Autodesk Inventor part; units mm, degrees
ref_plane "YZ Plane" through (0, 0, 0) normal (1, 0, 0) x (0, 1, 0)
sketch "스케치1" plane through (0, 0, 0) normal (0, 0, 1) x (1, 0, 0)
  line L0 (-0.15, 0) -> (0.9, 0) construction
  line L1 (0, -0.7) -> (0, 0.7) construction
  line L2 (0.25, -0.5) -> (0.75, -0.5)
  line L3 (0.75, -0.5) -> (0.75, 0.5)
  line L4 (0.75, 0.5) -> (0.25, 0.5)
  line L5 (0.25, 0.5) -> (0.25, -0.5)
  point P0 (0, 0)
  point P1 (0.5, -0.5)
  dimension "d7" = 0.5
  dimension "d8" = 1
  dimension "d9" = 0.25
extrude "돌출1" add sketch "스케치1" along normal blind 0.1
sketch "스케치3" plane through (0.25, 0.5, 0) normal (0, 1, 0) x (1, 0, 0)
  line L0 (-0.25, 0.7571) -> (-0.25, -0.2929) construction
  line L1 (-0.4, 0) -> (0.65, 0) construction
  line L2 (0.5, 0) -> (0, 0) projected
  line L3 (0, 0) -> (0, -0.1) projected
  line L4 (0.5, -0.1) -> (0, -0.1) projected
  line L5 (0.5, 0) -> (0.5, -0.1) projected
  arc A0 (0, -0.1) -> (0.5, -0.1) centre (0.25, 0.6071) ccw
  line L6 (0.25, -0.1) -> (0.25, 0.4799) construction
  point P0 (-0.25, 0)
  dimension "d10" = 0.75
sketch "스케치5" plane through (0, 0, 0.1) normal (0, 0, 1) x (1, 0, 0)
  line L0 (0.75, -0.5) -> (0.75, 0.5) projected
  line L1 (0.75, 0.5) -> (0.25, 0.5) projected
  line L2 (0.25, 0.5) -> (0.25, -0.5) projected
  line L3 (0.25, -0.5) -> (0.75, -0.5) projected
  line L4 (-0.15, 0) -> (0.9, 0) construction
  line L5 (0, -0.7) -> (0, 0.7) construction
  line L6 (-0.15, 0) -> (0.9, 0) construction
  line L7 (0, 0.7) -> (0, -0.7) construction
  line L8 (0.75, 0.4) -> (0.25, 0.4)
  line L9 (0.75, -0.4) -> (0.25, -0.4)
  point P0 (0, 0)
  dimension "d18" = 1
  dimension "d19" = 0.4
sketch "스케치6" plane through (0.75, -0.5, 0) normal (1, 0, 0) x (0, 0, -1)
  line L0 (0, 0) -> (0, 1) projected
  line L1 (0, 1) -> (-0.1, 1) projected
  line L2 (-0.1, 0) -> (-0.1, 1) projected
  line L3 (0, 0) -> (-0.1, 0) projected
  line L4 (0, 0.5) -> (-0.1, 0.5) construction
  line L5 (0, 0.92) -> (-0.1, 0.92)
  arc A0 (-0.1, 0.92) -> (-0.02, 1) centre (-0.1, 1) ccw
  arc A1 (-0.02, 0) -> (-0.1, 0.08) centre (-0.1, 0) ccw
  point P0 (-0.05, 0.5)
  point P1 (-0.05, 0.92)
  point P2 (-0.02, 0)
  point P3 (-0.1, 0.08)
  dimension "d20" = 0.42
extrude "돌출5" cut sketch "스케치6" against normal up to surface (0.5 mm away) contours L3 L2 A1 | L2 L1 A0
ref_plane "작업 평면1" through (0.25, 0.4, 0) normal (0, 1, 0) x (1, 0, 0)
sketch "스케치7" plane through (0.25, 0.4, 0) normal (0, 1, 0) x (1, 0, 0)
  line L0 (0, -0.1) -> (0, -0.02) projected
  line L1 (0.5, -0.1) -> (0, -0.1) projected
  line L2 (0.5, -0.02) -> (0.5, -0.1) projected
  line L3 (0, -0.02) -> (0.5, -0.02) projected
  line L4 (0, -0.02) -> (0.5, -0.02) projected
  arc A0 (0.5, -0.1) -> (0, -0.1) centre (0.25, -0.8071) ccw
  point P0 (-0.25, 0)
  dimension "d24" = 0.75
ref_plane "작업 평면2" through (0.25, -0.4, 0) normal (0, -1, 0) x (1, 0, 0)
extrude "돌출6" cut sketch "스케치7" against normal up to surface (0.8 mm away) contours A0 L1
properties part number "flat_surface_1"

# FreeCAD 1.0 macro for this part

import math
import FreeCAD as App
import Part
import Sketcher


def add_polygon(sketch, points):
    """Adds a closed chain of lines whose ends are joined by coincident constraints."""
    first, n = sketch.GeometryCount, len(points)
    for a, b in zip(points, points[1:] + points[:1]):
        sketch.addGeometry(Part.LineSegment(App.Vector(*a, 0), App.Vector(*b, 0)), False)
    for i in range(n):
        sketch.addConstraint(Sketcher.Constraint("Coincident", first + i, 2, first + (i + 1) % n, 1))

doc = App.newDocument("Part")
body = doc.addObject("PartDesign::Body", "Body")

sketch1 = doc.addObject("Sketcher::SketchObject", "Sketch")
body.addObject(sketch1)
sketch1.AttachmentSupport = (doc.XY_Plane, [""])
sketch1.MapMode = "FlatFace"
add_polygon(sketch1, [(0.2, 0.5), (0.2, -0.5), (0.8, -0.5), (0.8, 0.5)])
sketch1.addConstraint(Sketcher.Constraint("Vertical", 0))
sketch1.addConstraint(Sketcher.Constraint("Horizontal", 1))
sketch1.addConstraint(Sketcher.Constraint("Vertical", 2))
sketch1.addConstraint(Sketcher.Constraint("Horizontal", 3))
sketch1.addConstraint(Sketcher.Constraint("DistanceY", 0, 2, 0, 1, 1.0))
sketch1.addConstraint(Sketcher.Constraint("DistanceX", 1, 1, 1, 2, 0.5))
sketch1.addConstraint(Sketcher.Constraint("DistanceY", 0, 2, -1, 1, 0.5))
sketch1.addConstraint(Sketcher.Constraint("DistanceX", -1, 1, 0, 2, 0.25))
pad1 = doc.addObject("PartDesign::Pad", "Pad")
body.addObject(pad1)
pad1.Profile = sketch1
pad1.Length = 0.1

sketch2 = doc.addObject("Sketcher::SketchObject", "Sketch001")
body.addObject(sketch2)
sketch2.AttachmentSupport = (doc.YZ_Plane, [""])
sketch2.MapMode = "FlatFace"
sketch2.AttachmentOffset = App.Placement(App.Vector(0, 0, 0.75), App.Rotation())
sketch2.addGeometry(Part.LineSegment(App.Vector(-0.5, 0.1, 0), App.Vector(-0.5, 0.02, 0)), False)
sketch2.addGeometry(Part.ArcOfCircle(Part.Circle(App.Vector(-0.5, 0.1, 0), App.Vector(0, 0, 1), 0.08), math.radians(-90), math.radians(0)), False)
sketch2.addGeometry(Part.LineSegment(App.Vector(-0.42, 0.1, 0), App.Vector(-0.5, 0.1, 0)), False)
sketch2.addGeometry(Part.LineSegment(App.Vector(0.5, 0.1, 0), App.Vector(0.42, 0.1, 0)), False)
sketch2.addGeometry(Part.ArcOfCircle(Part.Circle(App.Vector(0.5, 0.1, 0), App.Vector(0, 0, 1), 0.08), math.radians(180), math.radians(270)), False)
sketch2.addGeometry(Part.LineSegment(App.Vector(0.5, 0.02, 0), App.Vector(0.5, 0.1, 0)), False)
sketch2.addConstraint(Sketcher.Constraint("Coincident", 0, 2, 1, 1))
sketch2.addConstraint(Sketcher.Constraint("Coincident", 1, 2, 2, 1))
sketch2.addConstraint(Sketcher.Constraint("Coincident", 2, 2, 0, 1))
sketch2.addConstraint(Sketcher.Constraint("Coincident", 3, 2, 4, 1))
sketch2.addConstraint(Sketcher.Constraint("Coincident", 4, 2, 5, 1))
sketch2.addConstraint(Sketcher.Constraint("Coincident", 5, 2, 3, 1))
sketch2.addConstraint(Sketcher.Constraint("Vertical", 0))
sketch2.addConstraint(Sketcher.Constraint("Horizontal", 2))
sketch2.addConstraint(Sketcher.Constraint("Horizontal", 3))
sketch2.addConstraint(Sketcher.Constraint("Vertical", 5))
sketch2.addConstraint(Sketcher.Constraint("Coincident", 2, 2, 1, 3))
sketch2.addConstraint(Sketcher.Constraint("Coincident", 5, 2, 4, 3))
sketch2.addConstraint(Sketcher.Constraint("Equal", 1, 4))
sketch2.addConstraint(Sketcher.Constraint("Symmetric", 1, 3, 4, 3, -2))
sketch2.addConstraint(Sketcher.Constraint("DistanceX", 1, 2, -1, 1, 0.42))
sketch2.addConstraint(Sketcher.Constraint("Radius", 1, 0.08))
sketch2.addConstraint(Sketcher.Constraint("DistanceY", -1, 1, 1, 3, 0.1))
pocket1 = doc.addObject("PartDesign::Pocket", "Pocket")
body.addObject(pocket1)
pocket1.Profile = sketch2
pocket1.Length = 0.5

sketch3 = doc.addObject("Sketcher::SketchObject", "Sketch002")
body.addObject(sketch3)
sketch3.AttachmentSupport = (doc.XZ_Plane, [""])
sketch3.MapMode = "FlatFace"
sketch3.AttachmentOffset = App.Placement(App.Vector(0, 0, -0.4), App.Rotation())
sketch3.addGeometry(Part.ArcOfCircle(Part.Circle(App.Vector(0.5, 0.8, 0), App.Vector(0, 0, 1), 0.7), math.radians(-109), math.radians(-71)), False)
sketch3.addGeometry(Part.LineSegment(App.Vector(0.2, 0.1, 0), App.Vector(0.8, 0.1, 0)), False)
sketch3.addConstraint(Sketcher.Constraint("Coincident", 0, 1, 1, 1))
sketch3.addConstraint(Sketcher.Constraint("Coincident", 1, 2, 0, 2))
sketch3.addConstraint(Sketcher.Constraint("Horizontal", 1))
sketch3.addConstraint(Sketcher.Constraint("Radius", 0, 0.75))
sketch3.addConstraint(Sketcher.Constraint("DistanceX", -1, 1, 1, 2, 0.75))
sketch3.addConstraint(Sketcher.Constraint("DistanceX", 1, 1, 1, 2, 0.5))
sketch3.addConstraint(Sketcher.Constraint("DistanceY", -1, 1, 0, 1, 0.1))
pocket2 = doc.addObject("PartDesign::Pocket", "Pocket001")
body.addObject(pocket2)
pocket2.Profile = sketch3
pocket2.Length = 0.8
pocket2.Reversed = True

doc.recompute()
